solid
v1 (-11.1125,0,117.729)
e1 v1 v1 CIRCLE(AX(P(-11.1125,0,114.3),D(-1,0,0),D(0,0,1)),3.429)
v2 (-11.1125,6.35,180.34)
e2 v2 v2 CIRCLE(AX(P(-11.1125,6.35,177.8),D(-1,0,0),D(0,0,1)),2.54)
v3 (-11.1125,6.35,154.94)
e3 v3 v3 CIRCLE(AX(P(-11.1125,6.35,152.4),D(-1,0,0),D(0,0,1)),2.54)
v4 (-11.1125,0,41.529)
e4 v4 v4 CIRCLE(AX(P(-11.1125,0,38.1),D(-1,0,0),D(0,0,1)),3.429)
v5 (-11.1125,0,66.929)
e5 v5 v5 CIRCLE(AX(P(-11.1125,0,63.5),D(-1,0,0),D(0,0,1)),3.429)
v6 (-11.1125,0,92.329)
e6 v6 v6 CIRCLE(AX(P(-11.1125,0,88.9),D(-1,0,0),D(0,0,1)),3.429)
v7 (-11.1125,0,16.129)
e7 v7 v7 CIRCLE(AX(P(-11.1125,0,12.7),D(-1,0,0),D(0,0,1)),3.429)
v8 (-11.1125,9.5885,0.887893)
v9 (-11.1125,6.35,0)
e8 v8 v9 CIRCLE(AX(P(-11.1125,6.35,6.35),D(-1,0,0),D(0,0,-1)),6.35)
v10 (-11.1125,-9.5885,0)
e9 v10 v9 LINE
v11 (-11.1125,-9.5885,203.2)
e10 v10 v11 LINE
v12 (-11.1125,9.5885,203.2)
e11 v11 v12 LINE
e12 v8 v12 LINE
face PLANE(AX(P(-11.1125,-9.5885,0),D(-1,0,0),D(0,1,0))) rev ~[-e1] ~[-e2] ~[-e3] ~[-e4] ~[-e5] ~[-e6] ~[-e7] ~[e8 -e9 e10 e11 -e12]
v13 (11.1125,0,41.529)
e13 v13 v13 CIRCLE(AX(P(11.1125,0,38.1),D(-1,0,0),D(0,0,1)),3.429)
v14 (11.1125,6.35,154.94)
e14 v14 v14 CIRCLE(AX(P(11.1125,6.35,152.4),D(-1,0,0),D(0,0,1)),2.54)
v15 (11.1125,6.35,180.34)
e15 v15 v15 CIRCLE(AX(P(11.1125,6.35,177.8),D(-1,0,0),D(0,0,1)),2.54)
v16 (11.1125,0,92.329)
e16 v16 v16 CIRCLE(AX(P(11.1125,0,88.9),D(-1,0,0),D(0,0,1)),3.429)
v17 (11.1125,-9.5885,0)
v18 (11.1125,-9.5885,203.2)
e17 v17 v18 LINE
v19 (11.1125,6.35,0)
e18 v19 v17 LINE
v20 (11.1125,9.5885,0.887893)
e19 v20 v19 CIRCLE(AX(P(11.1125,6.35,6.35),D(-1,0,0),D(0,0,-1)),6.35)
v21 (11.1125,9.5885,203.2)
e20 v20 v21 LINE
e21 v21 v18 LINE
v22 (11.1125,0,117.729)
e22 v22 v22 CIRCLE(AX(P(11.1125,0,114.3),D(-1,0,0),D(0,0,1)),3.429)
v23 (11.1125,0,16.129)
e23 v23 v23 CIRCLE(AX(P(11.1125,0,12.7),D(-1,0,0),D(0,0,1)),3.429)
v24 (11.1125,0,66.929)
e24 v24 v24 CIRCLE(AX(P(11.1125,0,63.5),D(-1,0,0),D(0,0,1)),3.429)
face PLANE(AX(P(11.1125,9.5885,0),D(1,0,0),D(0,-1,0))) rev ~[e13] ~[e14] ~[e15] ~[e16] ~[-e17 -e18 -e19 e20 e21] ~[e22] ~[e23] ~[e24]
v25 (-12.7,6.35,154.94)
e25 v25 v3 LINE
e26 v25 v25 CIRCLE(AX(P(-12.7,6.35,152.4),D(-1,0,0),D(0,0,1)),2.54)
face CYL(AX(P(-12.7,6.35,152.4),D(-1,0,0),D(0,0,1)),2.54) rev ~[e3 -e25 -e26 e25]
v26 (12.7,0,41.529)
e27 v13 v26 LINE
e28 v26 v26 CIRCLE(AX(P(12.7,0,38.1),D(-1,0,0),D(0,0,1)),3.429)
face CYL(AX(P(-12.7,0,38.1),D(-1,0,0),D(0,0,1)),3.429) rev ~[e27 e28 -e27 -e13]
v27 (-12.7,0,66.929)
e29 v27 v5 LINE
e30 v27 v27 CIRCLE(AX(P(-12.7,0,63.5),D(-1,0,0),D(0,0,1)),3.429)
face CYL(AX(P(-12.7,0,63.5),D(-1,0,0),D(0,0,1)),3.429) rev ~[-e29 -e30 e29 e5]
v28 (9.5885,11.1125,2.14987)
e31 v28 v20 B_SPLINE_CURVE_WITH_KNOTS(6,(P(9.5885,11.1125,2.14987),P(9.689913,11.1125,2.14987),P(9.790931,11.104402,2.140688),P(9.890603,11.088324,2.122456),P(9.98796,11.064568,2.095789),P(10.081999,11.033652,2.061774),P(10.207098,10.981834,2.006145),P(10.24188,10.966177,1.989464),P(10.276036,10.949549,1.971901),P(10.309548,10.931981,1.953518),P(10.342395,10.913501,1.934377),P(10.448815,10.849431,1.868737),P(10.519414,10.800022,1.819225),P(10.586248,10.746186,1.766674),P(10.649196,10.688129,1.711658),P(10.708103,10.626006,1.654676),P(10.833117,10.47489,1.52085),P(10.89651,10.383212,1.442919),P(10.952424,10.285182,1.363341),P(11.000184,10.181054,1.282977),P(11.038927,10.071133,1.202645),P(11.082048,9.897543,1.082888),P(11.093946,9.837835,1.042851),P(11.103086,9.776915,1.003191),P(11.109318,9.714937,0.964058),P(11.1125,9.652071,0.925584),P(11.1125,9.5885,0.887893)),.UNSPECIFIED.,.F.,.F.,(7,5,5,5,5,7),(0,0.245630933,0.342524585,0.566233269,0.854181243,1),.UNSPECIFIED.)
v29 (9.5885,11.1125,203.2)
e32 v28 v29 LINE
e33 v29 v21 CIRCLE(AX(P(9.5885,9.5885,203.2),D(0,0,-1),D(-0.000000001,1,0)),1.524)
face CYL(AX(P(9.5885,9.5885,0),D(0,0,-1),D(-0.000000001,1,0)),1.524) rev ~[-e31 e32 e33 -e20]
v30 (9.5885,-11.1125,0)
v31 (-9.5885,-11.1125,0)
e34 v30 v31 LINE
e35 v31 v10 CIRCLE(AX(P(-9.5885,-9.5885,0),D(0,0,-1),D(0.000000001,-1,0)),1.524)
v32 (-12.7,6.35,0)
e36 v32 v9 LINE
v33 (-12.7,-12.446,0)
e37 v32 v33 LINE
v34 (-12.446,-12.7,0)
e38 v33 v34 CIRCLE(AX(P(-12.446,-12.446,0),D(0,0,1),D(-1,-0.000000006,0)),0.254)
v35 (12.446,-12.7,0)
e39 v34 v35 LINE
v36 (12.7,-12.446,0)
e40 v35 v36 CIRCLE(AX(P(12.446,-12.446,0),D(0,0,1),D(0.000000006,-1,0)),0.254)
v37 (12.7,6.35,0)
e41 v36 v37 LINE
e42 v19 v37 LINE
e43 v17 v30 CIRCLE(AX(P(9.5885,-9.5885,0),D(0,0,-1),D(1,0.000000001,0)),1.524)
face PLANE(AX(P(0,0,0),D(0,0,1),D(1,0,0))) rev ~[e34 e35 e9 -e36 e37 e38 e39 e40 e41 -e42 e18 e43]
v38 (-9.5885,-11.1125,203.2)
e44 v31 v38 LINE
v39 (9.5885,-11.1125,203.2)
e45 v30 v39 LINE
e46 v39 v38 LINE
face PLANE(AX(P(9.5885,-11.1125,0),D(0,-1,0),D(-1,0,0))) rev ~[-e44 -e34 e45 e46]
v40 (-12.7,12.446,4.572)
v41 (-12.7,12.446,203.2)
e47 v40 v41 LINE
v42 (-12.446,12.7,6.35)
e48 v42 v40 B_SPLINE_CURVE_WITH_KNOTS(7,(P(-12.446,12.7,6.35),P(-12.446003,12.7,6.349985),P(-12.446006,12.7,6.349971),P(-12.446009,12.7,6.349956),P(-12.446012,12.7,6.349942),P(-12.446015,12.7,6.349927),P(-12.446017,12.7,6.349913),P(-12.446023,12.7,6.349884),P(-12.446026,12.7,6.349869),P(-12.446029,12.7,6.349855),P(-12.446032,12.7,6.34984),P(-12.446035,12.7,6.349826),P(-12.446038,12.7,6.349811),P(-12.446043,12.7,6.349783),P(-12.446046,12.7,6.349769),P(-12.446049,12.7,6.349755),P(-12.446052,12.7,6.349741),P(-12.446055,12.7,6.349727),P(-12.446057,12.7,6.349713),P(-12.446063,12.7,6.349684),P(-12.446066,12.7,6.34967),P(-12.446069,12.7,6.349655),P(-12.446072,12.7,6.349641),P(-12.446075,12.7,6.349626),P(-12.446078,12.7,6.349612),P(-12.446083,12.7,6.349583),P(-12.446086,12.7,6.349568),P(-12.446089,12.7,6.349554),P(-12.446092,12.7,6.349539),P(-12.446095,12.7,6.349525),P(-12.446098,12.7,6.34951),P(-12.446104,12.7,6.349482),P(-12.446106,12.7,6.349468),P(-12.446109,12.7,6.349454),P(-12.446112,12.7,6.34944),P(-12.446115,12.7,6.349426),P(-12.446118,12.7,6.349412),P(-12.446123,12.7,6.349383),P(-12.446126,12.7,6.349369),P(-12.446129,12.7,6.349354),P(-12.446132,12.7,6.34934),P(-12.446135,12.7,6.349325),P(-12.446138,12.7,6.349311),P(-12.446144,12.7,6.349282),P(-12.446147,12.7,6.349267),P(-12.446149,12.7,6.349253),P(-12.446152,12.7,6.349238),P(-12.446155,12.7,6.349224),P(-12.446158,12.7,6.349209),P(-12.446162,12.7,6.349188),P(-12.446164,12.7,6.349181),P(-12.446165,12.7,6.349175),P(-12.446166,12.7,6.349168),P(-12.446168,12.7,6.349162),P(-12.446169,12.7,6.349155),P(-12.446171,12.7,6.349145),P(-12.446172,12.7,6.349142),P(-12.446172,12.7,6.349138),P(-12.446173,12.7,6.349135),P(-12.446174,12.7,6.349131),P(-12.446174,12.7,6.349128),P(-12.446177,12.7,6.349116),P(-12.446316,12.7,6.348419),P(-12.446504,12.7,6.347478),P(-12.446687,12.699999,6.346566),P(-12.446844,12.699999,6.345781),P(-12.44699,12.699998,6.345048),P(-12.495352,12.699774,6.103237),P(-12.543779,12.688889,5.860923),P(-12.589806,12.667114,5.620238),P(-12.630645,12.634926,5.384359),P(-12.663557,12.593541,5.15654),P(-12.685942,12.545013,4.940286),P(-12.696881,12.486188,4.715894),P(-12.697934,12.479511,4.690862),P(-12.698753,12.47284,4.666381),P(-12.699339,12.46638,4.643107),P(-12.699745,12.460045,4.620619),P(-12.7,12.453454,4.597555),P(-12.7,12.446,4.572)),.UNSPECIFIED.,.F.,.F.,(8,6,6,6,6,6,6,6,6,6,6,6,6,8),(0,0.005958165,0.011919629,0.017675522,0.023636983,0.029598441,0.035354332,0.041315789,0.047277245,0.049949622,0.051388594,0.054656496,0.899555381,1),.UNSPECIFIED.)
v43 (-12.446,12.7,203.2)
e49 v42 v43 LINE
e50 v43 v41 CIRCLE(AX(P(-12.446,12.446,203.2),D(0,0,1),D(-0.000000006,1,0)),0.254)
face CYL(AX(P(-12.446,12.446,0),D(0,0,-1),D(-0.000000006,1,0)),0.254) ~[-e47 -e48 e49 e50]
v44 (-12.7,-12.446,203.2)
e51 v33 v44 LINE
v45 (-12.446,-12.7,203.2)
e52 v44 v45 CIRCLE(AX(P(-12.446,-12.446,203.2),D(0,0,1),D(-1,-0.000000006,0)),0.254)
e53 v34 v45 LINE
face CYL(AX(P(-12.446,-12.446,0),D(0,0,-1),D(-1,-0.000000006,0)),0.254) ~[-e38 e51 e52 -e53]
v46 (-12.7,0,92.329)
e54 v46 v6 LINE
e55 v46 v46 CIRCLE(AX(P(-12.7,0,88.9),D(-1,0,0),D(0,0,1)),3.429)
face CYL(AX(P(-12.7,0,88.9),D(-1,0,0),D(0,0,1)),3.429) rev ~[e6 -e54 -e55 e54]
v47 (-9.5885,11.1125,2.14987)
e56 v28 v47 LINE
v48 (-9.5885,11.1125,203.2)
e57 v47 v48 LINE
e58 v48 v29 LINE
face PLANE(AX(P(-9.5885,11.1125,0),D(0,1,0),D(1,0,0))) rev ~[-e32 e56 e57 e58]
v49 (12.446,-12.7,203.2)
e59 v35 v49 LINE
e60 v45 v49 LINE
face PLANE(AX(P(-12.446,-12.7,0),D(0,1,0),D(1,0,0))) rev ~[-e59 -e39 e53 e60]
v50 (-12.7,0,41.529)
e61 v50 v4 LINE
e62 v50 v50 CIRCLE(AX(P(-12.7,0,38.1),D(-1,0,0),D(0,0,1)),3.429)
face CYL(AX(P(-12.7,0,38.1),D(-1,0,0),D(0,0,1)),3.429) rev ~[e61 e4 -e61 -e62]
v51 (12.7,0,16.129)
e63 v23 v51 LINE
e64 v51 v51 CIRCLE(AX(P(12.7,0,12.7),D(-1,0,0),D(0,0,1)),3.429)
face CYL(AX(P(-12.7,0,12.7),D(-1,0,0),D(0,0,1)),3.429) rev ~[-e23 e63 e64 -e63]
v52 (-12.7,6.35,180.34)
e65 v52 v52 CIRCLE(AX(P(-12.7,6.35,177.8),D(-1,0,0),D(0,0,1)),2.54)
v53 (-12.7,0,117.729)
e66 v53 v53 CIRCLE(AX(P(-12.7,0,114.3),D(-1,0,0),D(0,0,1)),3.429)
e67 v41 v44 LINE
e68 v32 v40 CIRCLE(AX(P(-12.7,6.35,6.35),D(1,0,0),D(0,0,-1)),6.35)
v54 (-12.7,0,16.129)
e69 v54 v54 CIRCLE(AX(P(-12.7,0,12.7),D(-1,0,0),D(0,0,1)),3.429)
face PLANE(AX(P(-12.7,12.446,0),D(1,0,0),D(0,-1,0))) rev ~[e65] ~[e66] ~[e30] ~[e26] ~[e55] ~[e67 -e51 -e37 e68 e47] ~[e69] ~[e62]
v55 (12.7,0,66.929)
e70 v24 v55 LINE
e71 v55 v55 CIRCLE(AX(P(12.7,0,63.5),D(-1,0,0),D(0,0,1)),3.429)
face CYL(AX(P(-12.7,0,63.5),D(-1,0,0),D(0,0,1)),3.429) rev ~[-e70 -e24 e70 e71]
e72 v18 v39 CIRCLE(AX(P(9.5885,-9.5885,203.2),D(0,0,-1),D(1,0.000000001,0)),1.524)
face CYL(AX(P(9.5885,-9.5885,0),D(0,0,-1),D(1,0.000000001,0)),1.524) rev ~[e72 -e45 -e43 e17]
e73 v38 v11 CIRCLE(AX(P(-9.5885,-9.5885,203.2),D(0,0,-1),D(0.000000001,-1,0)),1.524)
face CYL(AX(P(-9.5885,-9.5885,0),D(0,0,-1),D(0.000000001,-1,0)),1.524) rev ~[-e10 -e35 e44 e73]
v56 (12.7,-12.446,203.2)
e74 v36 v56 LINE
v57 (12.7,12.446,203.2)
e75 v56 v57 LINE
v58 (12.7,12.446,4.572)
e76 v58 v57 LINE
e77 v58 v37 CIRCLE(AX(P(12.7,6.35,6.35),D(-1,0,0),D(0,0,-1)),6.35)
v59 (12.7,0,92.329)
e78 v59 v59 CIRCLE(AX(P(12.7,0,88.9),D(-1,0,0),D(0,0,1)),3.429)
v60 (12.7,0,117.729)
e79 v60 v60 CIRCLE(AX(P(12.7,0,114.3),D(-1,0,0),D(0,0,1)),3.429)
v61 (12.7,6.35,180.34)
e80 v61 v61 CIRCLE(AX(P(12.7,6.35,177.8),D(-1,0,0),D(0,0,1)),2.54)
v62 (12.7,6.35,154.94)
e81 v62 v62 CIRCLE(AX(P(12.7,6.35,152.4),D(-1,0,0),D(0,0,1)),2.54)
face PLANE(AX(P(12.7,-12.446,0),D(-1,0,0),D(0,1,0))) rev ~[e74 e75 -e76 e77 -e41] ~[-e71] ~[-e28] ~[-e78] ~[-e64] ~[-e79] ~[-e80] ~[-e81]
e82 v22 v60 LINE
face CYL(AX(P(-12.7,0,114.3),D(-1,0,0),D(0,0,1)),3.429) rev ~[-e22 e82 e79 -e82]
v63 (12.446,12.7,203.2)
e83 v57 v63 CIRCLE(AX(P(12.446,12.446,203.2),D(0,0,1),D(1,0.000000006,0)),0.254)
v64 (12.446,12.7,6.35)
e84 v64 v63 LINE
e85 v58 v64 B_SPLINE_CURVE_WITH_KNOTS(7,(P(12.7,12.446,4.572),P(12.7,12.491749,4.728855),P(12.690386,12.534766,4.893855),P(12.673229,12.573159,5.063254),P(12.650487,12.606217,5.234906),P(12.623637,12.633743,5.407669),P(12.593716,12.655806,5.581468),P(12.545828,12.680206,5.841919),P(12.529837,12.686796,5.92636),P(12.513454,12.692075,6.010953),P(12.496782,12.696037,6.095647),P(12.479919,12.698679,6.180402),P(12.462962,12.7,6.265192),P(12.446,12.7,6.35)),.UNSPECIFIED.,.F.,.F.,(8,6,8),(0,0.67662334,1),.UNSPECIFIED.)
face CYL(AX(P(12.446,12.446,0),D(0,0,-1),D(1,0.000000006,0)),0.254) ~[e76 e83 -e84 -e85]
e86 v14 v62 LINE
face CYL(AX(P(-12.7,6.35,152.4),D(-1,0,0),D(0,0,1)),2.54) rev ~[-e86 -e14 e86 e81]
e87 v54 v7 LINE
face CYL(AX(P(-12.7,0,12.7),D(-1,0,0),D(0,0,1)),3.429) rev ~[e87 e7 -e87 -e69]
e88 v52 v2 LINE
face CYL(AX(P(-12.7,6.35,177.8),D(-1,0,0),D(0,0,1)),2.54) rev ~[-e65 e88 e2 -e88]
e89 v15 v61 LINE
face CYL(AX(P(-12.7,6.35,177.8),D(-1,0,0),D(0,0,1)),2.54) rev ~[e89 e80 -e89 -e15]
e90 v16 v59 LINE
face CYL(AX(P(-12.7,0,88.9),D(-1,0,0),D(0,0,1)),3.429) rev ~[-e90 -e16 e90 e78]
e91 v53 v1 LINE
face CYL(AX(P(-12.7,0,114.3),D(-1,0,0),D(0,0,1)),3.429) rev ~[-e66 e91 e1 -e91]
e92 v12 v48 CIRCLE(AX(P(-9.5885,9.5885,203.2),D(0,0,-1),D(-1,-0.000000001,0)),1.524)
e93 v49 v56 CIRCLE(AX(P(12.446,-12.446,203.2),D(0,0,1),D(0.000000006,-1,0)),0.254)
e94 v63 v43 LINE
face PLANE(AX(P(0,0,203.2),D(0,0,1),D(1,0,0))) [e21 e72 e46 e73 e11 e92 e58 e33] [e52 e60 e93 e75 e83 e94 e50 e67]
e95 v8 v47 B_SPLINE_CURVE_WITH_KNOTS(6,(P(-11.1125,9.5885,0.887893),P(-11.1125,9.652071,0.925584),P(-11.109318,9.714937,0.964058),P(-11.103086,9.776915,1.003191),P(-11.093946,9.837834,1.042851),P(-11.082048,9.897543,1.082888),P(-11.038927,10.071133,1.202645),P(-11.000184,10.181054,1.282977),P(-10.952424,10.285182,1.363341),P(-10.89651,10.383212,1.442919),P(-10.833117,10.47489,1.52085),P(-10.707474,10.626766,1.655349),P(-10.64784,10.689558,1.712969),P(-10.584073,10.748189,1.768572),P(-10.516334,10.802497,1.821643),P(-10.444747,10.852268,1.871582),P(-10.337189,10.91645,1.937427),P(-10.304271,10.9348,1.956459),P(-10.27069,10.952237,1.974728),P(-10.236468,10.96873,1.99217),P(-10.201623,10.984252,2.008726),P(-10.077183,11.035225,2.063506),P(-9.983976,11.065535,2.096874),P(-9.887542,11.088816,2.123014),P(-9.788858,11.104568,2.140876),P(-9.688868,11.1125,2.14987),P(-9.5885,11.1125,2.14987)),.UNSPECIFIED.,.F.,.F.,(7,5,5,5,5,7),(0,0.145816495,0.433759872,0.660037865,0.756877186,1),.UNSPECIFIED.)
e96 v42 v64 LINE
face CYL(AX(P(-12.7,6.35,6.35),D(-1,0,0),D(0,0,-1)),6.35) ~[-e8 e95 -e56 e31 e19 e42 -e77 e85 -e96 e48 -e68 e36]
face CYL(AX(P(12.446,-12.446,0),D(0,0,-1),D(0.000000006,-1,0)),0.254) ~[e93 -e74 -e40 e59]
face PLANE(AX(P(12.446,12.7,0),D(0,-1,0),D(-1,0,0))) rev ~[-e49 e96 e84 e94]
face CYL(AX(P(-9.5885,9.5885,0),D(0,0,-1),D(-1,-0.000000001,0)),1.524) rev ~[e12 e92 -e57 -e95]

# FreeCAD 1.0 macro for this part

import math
import FreeCAD as App
import Part
import Sketcher

V = App.Vector
Q = App.Units.Quantity

doc = App.newDocument("Part")
params = doc.addObject("Spreadsheet::Sheet", "Params")
for row, (alias, value) in enumerate([
    ("sketch1_radius", "0.01 in"),
    ("sketch1_radius2", "0.06 in"),
    ("sketch1_width", "0.98 in"),
    ("sketch1_width2", "0.755 in"),
    ("pad1_length", "8 in"),
    ("sketch2_diameter", "0.2 in"),
    ("sketch2_diameter2", "0.27 in"),
    ("sketch2_radius", "0.25 in"),
], start=1):
    params.set(f"A{row}", alias)
    params.set(f"B{row}", "=" + value)
    params.setAlias(f"B{row}", alias)

body = doc.addObject("PartDesign::Body", "Body")

# Sketch on XY plane
sketch1 = body.newObject("Sketcher::SketchObject", "Sketch")
sketch1.AttachmentSupport = (doc.getObject("XY_Plane"), [""])
sketch1.MapMode = "FlatFace"
sketch1.addGeometry([
    Part.LineSegment(V(-12.45, -12.7, 0), V(12.45, -12.7, 0)),  # 0
    Part.ArcOfCircle(Part.Circle(V(12.45, -12.45, 0), V(0, 0, 1), 0.25), math.radians(-90), math.radians(0)),  # 1
    Part.LineSegment(V(12.7, -12.45, 0), V(12.7, 12.45, 0)),  # 2
    Part.ArcOfCircle(Part.Circle(V(12.45, 12.45, 0), V(0, 0, 1), 0.25), math.radians(0), math.radians(90)),  # 3
    Part.LineSegment(V(12.45, 12.7, 0), V(-12.45, 12.7, 0)),  # 4
    Part.ArcOfCircle(Part.Circle(V(-12.45, 12.45, 0), V(0, 0, 1), 0.25), math.radians(90), math.radians(180)),  # 5
    Part.LineSegment(V(-12.7, 12.45, 0), V(-12.7, -12.45, 0)),  # 6
    Part.ArcOfCircle(Part.Circle(V(-12.45, -12.45, 0), V(0, 0, 1), 0.25), math.radians(-180), math.radians(-90)),  # 7
    Part.ArcOfCircle(Part.Circle(V(-9.59, 9.59, 0), V(0, 0, 1), 1.52), math.radians(90), math.radians(180)),  # 8
    Part.LineSegment(V(-9.59, 11.11, 0), V(9.59, 11.11, 0)),  # 9
    Part.ArcOfCircle(Part.Circle(V(9.59, 9.59, 0), V(0, 0, 1), 1.52), math.radians(0), math.radians(90)),  # 10
    Part.LineSegment(V(11.11, 9.59, 0), V(11.11, -9.59, 0)),  # 11
    Part.ArcOfCircle(Part.Circle(V(9.59, -9.59, 0), V(0, 0, 1), 1.52), math.radians(-90), math.radians(0)),  # 12
    Part.LineSegment(V(9.59, -11.11, 0), V(-9.59, -11.11, 0)),  # 13
    Part.ArcOfCircle(Part.Circle(V(-9.59, -9.59, 0), V(0, 0, 1), 1.52), math.radians(180), math.radians(270)),  # 14
    Part.LineSegment(V(-11.11, -9.59, 0), V(-11.11, 9.59, 0)),  # 15
], False)
sketch1.addConstraint([
    Sketcher.Constraint("Tangent", 0, 2, 1, 1),
    Sketcher.Constraint("Tangent", 1, 2, 2, 1),
    Sketcher.Constraint("Tangent", 2, 2, 3, 1),
    Sketcher.Constraint("Tangent", 3, 2, 4, 1),
    Sketcher.Constraint("Tangent", 4, 2, 5, 1),
    Sketcher.Constraint("Tangent", 5, 2, 6, 1),
    Sketcher.Constraint("Tangent", 6, 2, 7, 1),
    Sketcher.Constraint("Tangent", 7, 2, 0, 1),
    Sketcher.Constraint("Tangent", 8, 1, 9, 1),
    Sketcher.Constraint("Tangent", 9, 2, 10, 2),
    Sketcher.Constraint("Tangent", 10, 1, 11, 1),
    Sketcher.Constraint("Tangent", 11, 2, 12, 2),
    Sketcher.Constraint("Tangent", 12, 1, 13, 1),
    Sketcher.Constraint("Tangent", 13, 2, 14, 2),
    Sketcher.Constraint("Tangent", 14, 1, 15, 1),
    Sketcher.Constraint("Tangent", 15, 2, 8, 2),
    Sketcher.Constraint("Horizontal", 0),
    Sketcher.Constraint("Vertical", 2),
    Sketcher.Constraint("Horizontal", 4),
    Sketcher.Constraint("Vertical", 6),
    Sketcher.Constraint("Horizontal", 9),
    Sketcher.Constraint("Vertical", 11),
    Sketcher.Constraint("Horizontal", 13),
    Sketcher.Constraint("Vertical", 15),
    Sketcher.Constraint("Equal", 1, 3),
    Sketcher.Constraint("Equal", 3, 5),
    Sketcher.Constraint("Equal", 5, 7),
    Sketcher.Constraint("Equal", 8, 10),
    Sketcher.Constraint("Equal", 10, 12),
    Sketcher.Constraint("Equal", 12, 14),
    Sketcher.Constraint("Symmetric", 1, 3, 5, 3, -1, 1),
    Sketcher.Constraint("Symmetric", 8, 3, 12, 3, -1, 1),
    Sketcher.Constraint("Equal", 4, 2),
    Sketcher.Constraint("Equal", 13, 11),
    Sketcher.Constraint("Radius", 1, Q("0.01 in")),
    Sketcher.Constraint("Radius", 8, Q("0.06 in")),
    Sketcher.Constraint("DistanceX", 0, 1, 0, 2, Q("0.98 in")),
    Sketcher.Constraint("DistanceX", 9, 1, 9, 2, Q("0.755 in")),
])
sketch1.setExpression("Constraints[34]", "Params.sketch1_radius")
sketch1.setExpression("Constraints[35]", "Params.sketch1_radius2")
sketch1.setExpression("Constraints[36]", "Params.sketch1_width")
sketch1.setExpression("Constraints[37]", "Params.sketch1_width2")
pad1 = body.newObject("PartDesign::Pad", "Pad")
pad1.Profile = sketch1
pad1.setExpression("Length", "Params.pad1_length")

# Sketch on YZ plane
sketch2 = body.newObject("Sketcher::SketchObject", "Sketch001")
sketch2.AttachmentSupport = (doc.getObject("YZ_Plane"), [""])
sketch2.MapMode = "FlatFace"
sketch2.AttachmentOffset = App.Placement(V(0, 0, -0.5 * 25.4), App.Rotation())
sketch2.addGeometry([
    Part.Circle(V(0, 12.7, 0), V(0, 0, 1), 3.4),  # 0
    Part.Circle(V(0, 38.1, 0), V(0, 0, 1), 3.4),  # 1
    Part.Circle(V(0, 63.5, 0), V(0, 0, 1), 3.4),  # 2
    Part.Circle(V(0, 88.9, 0), V(0, 0, 1), 3.4),  # 3
    Part.Circle(V(0, 114.3, 0), V(0, 0, 1), 3.4),  # 4
    Part.Circle(V(6.3, 177.8, 0), V(0, 0, 1), 2.5),  # 5
    Part.Circle(V(6.3, 152.4, 0), V(0, 0, 1), 2.5),  # 6
    Part.LineSegment(V(12.7, 6.3, 0), V(12.7, 0, 0)),  # 7
    Part.LineSegment(V(12.7, 0, 0), V(6.3, 0, 0)),  # 8
    Part.ArcOfCircle(Part.Circle(V(6.4, 6.3, 0), V(0, 0, 1), 6.3), math.radians(-90), math.radians(0)),  # 9
], False)
sketch2.addConstraint([
    Sketcher.Constraint("Coincident", 7, 2, 8, 1),
    Sketcher.Constraint("Tangent", 8, 2, 9, 1),
    Sketcher.Constraint("Tangent", 9, 2, 7, 1),
    Sketcher.Constraint("Vertical", 7),
    Sketcher.Constraint("Horizontal", 8),
    Sketcher.Constraint("Equal", 0, 1),
    Sketcher.Constraint("Equal", 1, 2),
    Sketcher.Constraint("Equal", 2, 3),
    Sketcher.Constraint("Equal", 3, 4),
    Sketcher.Constraint("Equal", 5, 6),
    Sketcher.Constraint("PointOnObject", 0, 3, -2),
    Sketcher.Constraint("PointOnObject", 1, 3, -2),
    Sketcher.Constraint("PointOnObject", 2, 3, -2),
    Sketcher.Constraint("PointOnObject", 3, 3, -2),
    Sketcher.Constraint("PointOnObject", 4, 3, -2),
    Sketcher.Constraint("PointOnObject", 7, 2, -1),
    Sketcher.Constraint("Vertical", 5, 3, 6, 3),
    Sketcher.Constraint("Vertical", 6, 3, 9, 3),
    Sketcher.Constraint("Diameter", 5, Q("0.2 in")),
    Sketcher.Constraint("Diameter", 0, Q("0.27 in")),
    Sketcher.Constraint("Radius", 9, Q("0.25 in")),
    Sketcher.Constraint("DistanceY", -1, 1, 5, 3, Q("7 in")),
    Sketcher.Constraint("DistanceY", -1, 1, 6, 3, Q("6 in")),
    Sketcher.Constraint("DistanceY", 0, 3, 1, 3, Q("1 in")),
    Sketcher.Constraint("DistanceY", 1, 3, 2, 3, Q("1 in")),
    Sketcher.Constraint("DistanceY", 2, 3, 3, 3, Q("1 in")),
    Sketcher.Constraint("DistanceY", 3, 3, 4, 3, Q("1 in")),
    Sketcher.Constraint("DistanceY", -1, 1, 0, 3, Q("0.5 in")),
    Sketcher.Constraint("DistanceX", -1, 1, 7, 2, Q("0.5 in")),
])
sketch2.setExpression("Constraints[18]", "Params.sketch2_diameter")
sketch2.setExpression("Constraints[19]", "Params.sketch2_diameter2")
sketch2.setExpression("Constraints[20]", "Params.sketch2_radius")
pocket1 = body.newObject("PartDesign::Pocket", "Pocket")
pocket1.Profile = sketch2
pocket1.Type = "ThroughAll"
pocket1.Reversed = True

doc.recompute()
